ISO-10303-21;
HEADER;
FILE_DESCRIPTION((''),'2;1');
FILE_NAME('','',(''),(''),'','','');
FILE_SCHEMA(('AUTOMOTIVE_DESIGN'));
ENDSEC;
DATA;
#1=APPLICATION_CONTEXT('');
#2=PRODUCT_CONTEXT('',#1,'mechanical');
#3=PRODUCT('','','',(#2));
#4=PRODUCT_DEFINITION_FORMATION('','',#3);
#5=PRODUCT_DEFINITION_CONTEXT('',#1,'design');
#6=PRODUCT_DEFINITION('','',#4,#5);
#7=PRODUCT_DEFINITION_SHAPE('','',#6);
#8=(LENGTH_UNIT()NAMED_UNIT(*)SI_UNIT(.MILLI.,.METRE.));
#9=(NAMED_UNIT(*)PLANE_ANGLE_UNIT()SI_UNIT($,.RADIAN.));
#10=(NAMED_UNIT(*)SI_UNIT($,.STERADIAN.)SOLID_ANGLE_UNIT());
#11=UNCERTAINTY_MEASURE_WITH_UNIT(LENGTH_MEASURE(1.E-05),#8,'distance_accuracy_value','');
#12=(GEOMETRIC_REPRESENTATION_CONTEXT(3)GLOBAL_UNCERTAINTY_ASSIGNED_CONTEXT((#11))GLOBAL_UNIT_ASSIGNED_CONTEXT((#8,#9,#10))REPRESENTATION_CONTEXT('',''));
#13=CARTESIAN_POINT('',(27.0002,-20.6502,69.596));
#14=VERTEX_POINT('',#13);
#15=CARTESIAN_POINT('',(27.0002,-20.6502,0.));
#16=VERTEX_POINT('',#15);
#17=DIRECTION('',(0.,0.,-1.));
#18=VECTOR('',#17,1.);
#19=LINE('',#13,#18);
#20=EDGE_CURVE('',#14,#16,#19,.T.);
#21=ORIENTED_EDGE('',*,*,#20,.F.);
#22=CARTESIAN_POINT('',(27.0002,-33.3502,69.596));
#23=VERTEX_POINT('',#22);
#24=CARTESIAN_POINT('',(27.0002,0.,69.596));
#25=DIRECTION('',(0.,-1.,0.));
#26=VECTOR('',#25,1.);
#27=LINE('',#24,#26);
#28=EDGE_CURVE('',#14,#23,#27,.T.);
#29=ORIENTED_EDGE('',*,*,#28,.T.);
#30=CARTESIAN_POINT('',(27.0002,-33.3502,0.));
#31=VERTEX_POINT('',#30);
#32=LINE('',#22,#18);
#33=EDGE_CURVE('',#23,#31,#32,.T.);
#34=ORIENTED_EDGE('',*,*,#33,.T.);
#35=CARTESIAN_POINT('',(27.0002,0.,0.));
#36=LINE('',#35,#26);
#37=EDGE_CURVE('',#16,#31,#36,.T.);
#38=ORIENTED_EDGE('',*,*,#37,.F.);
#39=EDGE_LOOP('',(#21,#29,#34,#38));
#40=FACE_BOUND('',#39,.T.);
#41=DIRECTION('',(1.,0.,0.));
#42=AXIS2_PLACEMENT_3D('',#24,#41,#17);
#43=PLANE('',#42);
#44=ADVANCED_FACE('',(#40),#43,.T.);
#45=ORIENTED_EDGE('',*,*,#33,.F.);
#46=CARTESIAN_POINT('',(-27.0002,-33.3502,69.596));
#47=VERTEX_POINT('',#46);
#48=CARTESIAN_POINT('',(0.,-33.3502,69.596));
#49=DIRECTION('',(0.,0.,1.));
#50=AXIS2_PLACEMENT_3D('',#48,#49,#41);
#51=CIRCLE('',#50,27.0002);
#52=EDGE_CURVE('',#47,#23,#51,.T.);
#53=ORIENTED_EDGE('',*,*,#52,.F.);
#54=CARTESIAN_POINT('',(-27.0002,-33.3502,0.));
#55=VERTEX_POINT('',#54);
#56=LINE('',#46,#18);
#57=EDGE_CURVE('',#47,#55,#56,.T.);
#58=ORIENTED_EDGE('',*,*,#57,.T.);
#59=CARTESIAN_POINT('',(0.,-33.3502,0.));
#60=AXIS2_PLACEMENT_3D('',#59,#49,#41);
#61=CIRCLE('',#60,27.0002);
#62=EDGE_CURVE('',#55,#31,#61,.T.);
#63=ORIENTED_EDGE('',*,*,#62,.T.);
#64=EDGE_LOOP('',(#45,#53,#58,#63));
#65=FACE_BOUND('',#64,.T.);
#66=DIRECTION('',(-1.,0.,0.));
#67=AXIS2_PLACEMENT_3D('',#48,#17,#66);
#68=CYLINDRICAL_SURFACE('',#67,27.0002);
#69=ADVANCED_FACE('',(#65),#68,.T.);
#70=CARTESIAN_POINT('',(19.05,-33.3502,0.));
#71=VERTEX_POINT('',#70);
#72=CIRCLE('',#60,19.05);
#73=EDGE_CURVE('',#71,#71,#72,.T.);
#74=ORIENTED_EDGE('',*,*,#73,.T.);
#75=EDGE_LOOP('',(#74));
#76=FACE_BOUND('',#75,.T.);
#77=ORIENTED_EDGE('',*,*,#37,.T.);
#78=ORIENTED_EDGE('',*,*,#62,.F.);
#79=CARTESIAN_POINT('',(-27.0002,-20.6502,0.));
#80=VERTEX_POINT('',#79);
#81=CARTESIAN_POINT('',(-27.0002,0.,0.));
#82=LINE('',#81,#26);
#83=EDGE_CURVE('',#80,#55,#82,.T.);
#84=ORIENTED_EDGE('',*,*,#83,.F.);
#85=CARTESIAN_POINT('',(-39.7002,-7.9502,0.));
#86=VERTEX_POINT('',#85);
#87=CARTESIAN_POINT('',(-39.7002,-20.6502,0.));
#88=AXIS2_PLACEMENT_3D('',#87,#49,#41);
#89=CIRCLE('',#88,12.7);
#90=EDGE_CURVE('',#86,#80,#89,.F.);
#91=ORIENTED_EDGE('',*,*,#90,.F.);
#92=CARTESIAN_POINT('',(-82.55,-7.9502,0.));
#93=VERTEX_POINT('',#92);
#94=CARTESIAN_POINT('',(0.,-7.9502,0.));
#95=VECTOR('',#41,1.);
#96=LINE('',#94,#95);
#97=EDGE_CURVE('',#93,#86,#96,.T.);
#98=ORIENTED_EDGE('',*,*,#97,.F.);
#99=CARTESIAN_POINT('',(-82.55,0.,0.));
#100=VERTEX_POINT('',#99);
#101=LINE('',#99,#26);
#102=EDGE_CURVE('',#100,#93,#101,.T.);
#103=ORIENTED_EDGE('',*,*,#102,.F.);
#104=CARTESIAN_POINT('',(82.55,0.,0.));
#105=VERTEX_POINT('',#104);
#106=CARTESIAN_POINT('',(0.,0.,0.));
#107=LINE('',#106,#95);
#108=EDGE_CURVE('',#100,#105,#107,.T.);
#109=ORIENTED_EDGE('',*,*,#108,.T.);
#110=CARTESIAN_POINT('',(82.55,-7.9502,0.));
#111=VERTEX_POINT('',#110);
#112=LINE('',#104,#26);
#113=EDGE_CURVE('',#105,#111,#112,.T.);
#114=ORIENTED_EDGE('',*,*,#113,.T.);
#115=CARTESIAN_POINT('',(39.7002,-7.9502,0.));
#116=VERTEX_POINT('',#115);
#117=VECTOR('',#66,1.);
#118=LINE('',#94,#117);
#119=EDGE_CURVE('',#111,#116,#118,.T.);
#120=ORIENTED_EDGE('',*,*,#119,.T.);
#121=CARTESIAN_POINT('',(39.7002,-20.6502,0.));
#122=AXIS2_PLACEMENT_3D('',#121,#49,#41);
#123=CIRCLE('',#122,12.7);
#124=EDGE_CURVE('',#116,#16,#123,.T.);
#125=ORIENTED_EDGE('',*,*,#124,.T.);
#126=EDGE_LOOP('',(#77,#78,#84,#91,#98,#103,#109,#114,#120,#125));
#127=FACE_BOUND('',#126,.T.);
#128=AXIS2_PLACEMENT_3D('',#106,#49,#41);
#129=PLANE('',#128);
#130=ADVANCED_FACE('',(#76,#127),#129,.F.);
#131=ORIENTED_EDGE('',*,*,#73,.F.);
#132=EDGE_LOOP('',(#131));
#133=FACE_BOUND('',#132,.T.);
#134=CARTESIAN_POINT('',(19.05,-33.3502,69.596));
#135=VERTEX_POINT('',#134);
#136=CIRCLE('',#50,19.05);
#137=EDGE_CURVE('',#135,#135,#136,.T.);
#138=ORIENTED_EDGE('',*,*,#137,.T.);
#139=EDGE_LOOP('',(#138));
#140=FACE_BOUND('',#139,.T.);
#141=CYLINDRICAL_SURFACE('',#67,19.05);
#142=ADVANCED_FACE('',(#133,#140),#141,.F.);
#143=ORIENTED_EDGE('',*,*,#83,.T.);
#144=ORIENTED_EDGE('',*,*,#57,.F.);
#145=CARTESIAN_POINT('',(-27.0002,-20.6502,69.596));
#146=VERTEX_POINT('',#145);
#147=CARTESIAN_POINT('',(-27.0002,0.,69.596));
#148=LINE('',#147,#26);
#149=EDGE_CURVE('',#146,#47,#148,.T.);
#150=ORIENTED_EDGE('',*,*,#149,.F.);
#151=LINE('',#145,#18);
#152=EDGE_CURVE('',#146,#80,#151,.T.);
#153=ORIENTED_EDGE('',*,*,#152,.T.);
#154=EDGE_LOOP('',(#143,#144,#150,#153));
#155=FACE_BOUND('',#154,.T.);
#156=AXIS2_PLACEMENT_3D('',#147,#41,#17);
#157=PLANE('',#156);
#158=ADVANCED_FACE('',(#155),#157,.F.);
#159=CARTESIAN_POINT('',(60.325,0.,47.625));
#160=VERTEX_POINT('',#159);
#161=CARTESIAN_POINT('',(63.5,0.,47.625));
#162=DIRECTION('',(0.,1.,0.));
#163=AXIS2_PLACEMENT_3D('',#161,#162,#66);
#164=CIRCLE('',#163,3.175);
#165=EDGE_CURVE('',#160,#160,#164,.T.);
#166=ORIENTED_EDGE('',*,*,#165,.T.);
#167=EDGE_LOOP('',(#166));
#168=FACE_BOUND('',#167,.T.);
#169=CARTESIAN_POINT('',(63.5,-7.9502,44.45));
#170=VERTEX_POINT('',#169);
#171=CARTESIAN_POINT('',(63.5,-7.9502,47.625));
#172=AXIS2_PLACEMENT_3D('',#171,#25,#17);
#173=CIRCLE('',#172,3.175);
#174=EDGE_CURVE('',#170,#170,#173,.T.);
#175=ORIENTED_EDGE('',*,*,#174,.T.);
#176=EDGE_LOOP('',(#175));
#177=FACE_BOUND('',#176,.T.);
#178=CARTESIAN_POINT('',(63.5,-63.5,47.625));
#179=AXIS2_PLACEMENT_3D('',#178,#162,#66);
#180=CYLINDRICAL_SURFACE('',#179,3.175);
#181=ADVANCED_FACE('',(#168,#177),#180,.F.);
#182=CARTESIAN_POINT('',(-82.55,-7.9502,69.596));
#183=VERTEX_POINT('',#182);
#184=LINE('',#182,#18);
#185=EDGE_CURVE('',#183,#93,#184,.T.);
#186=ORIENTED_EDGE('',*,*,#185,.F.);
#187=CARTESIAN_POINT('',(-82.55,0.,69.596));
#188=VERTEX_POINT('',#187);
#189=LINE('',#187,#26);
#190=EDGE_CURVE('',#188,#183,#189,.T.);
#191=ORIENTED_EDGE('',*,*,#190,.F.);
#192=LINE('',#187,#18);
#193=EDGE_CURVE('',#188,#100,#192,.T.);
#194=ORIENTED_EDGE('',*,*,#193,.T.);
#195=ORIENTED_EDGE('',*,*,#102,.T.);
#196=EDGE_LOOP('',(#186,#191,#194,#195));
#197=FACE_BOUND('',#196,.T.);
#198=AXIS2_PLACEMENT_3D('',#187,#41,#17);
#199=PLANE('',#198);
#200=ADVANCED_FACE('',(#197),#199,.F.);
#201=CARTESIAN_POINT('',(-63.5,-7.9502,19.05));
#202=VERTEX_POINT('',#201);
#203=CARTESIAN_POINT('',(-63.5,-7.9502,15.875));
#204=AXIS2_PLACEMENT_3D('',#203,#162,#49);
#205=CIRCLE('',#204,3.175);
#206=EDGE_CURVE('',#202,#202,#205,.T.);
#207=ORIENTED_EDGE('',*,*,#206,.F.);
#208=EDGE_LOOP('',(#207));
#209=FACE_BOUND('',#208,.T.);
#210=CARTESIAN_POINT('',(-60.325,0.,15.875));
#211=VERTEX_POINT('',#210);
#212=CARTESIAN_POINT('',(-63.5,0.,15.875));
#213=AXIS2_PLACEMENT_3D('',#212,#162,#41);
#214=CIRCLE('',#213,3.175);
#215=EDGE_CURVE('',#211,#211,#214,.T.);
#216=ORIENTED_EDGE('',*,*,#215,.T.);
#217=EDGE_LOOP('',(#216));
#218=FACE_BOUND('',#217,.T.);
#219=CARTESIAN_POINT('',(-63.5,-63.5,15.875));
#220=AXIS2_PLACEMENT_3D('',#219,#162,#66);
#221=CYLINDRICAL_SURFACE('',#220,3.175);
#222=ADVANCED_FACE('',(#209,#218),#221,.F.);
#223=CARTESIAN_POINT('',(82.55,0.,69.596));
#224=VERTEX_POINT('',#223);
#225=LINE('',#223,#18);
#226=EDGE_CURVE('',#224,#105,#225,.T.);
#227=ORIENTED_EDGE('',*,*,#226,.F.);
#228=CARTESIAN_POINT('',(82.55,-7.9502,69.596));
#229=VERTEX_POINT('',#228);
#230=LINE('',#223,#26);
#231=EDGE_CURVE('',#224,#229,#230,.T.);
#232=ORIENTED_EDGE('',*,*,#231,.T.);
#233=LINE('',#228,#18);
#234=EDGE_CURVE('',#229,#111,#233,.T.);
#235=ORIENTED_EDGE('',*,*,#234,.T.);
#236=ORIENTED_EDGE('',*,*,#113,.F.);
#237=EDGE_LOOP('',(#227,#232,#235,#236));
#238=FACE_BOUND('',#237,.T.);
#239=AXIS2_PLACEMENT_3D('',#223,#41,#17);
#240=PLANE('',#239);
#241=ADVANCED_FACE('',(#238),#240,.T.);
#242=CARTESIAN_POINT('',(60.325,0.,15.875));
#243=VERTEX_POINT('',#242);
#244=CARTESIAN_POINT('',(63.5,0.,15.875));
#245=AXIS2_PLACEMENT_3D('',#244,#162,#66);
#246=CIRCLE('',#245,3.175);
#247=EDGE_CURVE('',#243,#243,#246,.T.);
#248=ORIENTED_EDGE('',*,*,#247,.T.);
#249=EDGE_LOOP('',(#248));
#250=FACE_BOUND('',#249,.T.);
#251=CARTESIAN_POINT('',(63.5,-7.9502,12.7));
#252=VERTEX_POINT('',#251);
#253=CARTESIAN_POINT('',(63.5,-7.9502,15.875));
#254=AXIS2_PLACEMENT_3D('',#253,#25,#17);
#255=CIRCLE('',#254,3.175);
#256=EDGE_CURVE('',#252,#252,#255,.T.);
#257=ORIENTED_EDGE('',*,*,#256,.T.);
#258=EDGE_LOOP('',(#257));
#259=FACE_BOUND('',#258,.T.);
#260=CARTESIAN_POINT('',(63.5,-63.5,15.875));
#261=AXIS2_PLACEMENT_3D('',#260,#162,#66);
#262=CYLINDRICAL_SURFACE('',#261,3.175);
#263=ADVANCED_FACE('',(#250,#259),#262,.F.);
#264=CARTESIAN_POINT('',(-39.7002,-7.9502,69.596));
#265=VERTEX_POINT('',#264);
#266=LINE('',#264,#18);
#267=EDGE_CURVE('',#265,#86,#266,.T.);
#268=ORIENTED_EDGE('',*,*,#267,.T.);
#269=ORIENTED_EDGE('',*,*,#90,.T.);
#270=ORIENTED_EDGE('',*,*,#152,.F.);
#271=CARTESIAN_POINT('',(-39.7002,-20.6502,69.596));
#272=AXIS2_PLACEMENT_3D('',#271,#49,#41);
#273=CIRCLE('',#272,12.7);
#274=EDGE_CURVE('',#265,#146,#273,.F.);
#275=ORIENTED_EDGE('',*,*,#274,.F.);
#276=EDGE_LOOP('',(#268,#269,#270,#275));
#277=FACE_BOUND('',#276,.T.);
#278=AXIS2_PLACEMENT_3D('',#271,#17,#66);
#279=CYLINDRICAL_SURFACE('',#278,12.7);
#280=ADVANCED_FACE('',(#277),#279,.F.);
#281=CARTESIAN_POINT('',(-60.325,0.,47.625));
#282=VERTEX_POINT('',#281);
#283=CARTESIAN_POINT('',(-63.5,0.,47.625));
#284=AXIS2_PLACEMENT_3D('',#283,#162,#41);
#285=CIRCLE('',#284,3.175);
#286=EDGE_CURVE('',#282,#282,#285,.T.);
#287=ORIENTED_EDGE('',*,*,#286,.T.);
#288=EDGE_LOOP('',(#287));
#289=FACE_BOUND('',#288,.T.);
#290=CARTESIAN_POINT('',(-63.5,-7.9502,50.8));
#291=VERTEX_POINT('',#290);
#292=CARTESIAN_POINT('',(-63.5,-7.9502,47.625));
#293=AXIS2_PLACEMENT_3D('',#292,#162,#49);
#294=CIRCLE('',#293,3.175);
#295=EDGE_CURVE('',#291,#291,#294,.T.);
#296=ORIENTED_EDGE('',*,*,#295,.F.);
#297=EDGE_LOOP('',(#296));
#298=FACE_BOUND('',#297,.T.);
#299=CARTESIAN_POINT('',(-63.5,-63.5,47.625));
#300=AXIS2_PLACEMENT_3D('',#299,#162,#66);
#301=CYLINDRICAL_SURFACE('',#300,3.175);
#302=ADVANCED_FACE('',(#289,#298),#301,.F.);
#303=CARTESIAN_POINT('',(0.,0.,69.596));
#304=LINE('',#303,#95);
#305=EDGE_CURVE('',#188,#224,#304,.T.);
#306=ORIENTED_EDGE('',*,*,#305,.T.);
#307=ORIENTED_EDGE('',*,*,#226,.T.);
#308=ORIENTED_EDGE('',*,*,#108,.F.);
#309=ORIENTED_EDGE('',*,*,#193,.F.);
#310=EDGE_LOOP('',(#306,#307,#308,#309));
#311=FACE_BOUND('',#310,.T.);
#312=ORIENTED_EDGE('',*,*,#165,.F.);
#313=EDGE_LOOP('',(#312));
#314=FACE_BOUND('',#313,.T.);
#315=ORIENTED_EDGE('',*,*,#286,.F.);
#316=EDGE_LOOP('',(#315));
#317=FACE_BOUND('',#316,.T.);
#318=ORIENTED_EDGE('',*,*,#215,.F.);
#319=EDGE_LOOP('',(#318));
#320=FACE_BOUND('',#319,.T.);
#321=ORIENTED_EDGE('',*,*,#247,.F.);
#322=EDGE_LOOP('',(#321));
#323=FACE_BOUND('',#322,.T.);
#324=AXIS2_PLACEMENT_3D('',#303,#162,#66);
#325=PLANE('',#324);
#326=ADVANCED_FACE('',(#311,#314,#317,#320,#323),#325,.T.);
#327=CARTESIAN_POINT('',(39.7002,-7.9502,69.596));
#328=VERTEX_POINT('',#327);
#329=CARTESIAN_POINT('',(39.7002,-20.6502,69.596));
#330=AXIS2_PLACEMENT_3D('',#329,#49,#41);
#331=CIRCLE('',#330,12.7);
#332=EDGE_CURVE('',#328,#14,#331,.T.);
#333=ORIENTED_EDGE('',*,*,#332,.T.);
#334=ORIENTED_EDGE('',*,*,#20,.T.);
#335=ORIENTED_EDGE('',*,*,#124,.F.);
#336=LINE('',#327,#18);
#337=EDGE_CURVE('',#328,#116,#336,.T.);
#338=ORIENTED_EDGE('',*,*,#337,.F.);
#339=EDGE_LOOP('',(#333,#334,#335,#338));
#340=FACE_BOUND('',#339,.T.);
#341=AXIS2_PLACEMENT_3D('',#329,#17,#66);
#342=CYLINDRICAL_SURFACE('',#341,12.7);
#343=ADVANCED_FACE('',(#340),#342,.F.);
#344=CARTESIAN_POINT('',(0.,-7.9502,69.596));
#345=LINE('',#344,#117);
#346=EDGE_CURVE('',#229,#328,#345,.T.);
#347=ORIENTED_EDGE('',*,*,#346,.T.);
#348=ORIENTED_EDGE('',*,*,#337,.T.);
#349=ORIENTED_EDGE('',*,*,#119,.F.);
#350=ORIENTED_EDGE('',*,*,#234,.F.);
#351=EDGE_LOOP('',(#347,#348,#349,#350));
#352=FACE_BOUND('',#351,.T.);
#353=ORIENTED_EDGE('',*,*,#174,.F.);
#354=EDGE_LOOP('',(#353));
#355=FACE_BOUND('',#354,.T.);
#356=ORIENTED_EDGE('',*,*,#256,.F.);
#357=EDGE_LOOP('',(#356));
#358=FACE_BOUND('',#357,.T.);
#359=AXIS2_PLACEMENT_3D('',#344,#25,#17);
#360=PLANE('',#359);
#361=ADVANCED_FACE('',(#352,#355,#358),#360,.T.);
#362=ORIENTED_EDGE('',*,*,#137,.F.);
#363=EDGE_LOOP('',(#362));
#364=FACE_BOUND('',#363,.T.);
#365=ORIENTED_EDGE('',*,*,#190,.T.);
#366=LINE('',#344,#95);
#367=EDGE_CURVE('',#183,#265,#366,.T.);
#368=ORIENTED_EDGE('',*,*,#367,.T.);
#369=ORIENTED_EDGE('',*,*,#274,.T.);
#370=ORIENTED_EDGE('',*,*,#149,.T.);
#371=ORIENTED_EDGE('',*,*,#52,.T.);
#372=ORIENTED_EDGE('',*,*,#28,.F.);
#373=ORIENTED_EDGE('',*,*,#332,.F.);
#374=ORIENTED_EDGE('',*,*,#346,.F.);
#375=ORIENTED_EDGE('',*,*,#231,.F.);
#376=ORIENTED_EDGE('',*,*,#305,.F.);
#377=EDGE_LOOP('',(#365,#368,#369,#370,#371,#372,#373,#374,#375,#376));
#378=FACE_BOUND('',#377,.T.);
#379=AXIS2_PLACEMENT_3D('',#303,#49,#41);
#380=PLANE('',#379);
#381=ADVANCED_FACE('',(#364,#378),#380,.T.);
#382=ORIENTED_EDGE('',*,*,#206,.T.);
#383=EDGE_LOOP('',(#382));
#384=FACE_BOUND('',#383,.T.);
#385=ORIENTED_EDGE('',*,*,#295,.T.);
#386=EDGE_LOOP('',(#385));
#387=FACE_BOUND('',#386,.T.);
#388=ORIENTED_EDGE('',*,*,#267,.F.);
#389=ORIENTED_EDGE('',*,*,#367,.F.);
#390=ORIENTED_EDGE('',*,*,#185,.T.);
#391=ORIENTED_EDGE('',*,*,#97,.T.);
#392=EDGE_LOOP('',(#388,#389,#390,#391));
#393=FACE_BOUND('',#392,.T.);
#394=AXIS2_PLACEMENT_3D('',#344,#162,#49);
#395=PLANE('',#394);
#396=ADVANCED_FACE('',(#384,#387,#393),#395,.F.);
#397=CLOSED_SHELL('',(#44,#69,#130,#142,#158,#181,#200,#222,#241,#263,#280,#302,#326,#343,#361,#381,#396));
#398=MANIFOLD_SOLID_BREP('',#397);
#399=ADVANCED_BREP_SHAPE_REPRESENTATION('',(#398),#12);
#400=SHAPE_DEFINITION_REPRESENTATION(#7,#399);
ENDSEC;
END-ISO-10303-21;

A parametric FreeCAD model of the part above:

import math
import FreeCAD as App
import Part
import Sketcher
from FreeCAD import Vector
Q = App.Units.Quantity

doc = App.newDocument("Part")
body = doc.addObject("PartDesign::Body", "Body")

# Sketch on XY plane
sketch1 = doc.addObject("Sketcher::SketchObject", "Sketch")
body.addObject(sketch1)
sketch1.AttachmentSupport = (doc.XY_Plane, [""])
sketch1.MapMode = "FlatFace"
sketch1.addGeometry([
    Part.LineSegment(Vector(83, 0, 0), Vector(-83, 0, 0)),  # 0
    Part.LineSegment(Vector(-83, 0, 0), Vector(-83, -8, 0)),  # 1
    Part.LineSegment(Vector(-83, -8, 0), Vector(-40, -8, 0)),  # 2
    Part.ArcOfCircle(Part.Circle(Vector(-40, -21, 0), Vector(0, 0, 1), 13), math.radians(0), math.radians(90)),  # 3
    Part.LineSegment(Vector(-27, -21, 0), Vector(-27, -33, 0)),  # 4
    Part.ArcOfCircle(Part.Circle(Vector(0, -33, 0), Vector(0, 0, 1), 27), math.radians(-180), math.radians(-90)),  # 5
    Part.ArcOfCircle(Part.Circle(Vector(0, -33, 0), Vector(0, 0, 1), 27), math.radians(-90), math.radians(0)),  # 6
    Part.LineSegment(Vector(27, -33, 0), Vector(27, -21, 0)),  # 7
    Part.ArcOfCircle(Part.Circle(Vector(40, -21, 0), Vector(0, 0, 1), 13), math.radians(90), math.radians(180)),  # 8
    Part.LineSegment(Vector(40, -8, 0), Vector(83, -8, 0)),  # 9
    Part.LineSegment(Vector(83, -8, 0), Vector(83, 0, 0)),  # 10
    Part.Circle(Vector(0, -33, 0), Vector(0, 0, 1), 19),  # 11
], False)
sketch1.addConstraint([
    Sketcher.Constraint("Coincident", 0, 2, 1, 1),
    Sketcher.Constraint("Coincident", 1, 2, 2, 1),
    Sketcher.Constraint("Tangent", 2, 2, 3, 2),
    Sketcher.Constraint("Tangent", 3, 1, 4, 1),
    Sketcher.Constraint("Tangent", 4, 2, 5, 1),
    Sketcher.Constraint("Tangent", 5, 2, 6, 1),
    Sketcher.Constraint("Tangent", 6, 2, 7, 1),
    Sketcher.Constraint("Tangent", 7, 2, 8, 2),
    Sketcher.Constraint("Tangent", 8, 1, 9, 1),
    Sketcher.Constraint("Coincident", 9, 2, 10, 1),
    Sketcher.Constraint("Coincident", 10, 2, 0, 1),
    Sketcher.Constraint("Horizontal", 0),
    Sketcher.Constraint("Vertical", 1),
    Sketcher.Constraint("Horizontal", 2),
    Sketcher.Constraint("Vertical", 4),
    Sketcher.Constraint("Vertical", 7),
    Sketcher.Constraint("Horizontal", 9),
    Sketcher.Constraint("Vertical", 10),
    Sketcher.Constraint("Coincident", 11, 3, 5, 3),
    Sketcher.Constraint("Equal", 5, 6),
    Sketcher.Constraint("Equal", 3, 8),
    Sketcher.Constraint("Symmetric", 0, 2, 10, 2, -1, 1),
    Sketcher.Constraint("Symmetric", 3, 3, 8, 3, -2),
    Sketcher.Constraint("PointOnObject", 5, 2, -2),
    Sketcher.Constraint("Diameter", 11, Q("1.5 in")),
    Sketcher.Constraint("Radius", 3, Q("0.5 in")),
    Sketcher.Constraint("DistanceX", 0, 2, 0, 1, Q("6.5 in")),
    Sketcher.Constraint("DistanceY", 4, 2, 4, 1, Q("0.5 in")),
    Sketcher.Constraint("Radius", 5, Q("1.063 in")),
    Sketcher.Constraint("DistanceY", 1, 2, 1, 1, Q("0.313 in")),
])
pad1 = doc.addObject("PartDesign::Pad", "Pad")
body.addObject(pad1)
pad1.Profile = sketch1
pad1.Length = Q("2.74 in")

# Sketch on XZ plane
sketch2 = doc.addObject("Sketcher::SketchObject", "Sketch001")
body.addObject(sketch2)
sketch2.AttachmentSupport = (doc.XZ_Plane, [""])
sketch2.MapMode = "FlatFace"
sketch2.addGeometry([
    Part.Circle(Vector(63.5, 15.9, 0), Vector(0, 0, 1), 3.2),
    Part.Circle(Vector(63.5, 47.6, 0), Vector(0, 0, 1), 3.2),
    Part.Circle(Vector(-63.5, 47.6, 0), Vector(0, 0, 1), 3.2),
    Part.Circle(Vector(-63.5, 15.9, 0), Vector(0, 0, 1), 3.2),
], False)
sketch2.addConstraint([
    Sketcher.Constraint("Equal", 0, 1),
    Sketcher.Constraint("Equal", 1, 2),
    Sketcher.Constraint("Equal", 2, 3),
    Sketcher.Constraint("Symmetric", 1, 3, 2, 3, -2),
    Sketcher.Constraint("Symmetric", 0, 3, 3, 3, -2),
    Sketcher.Constraint("Vertical", 0, 3, 1, 3),
    Sketcher.Constraint("Diameter", 0, Q("0.25 in")),
    Sketcher.Constraint("DistanceX", 2, 3, 1, 3, Q("5 in")),
    Sketcher.Constraint("DistanceY", 0, 3, 1, 3, Q("1.25 in")),
    Sketcher.Constraint("DistanceY", -1, 1, 0, 3, Q("0.625 in")),
])
pocket1 = doc.addObject("PartDesign::Pocket", "Pocket")
body.addObject(pocket1)
pocket1.Profile = sketch2
pocket1.Length = Q("2.5 in")
pocket1.Reversed = True

doc.recompute()
